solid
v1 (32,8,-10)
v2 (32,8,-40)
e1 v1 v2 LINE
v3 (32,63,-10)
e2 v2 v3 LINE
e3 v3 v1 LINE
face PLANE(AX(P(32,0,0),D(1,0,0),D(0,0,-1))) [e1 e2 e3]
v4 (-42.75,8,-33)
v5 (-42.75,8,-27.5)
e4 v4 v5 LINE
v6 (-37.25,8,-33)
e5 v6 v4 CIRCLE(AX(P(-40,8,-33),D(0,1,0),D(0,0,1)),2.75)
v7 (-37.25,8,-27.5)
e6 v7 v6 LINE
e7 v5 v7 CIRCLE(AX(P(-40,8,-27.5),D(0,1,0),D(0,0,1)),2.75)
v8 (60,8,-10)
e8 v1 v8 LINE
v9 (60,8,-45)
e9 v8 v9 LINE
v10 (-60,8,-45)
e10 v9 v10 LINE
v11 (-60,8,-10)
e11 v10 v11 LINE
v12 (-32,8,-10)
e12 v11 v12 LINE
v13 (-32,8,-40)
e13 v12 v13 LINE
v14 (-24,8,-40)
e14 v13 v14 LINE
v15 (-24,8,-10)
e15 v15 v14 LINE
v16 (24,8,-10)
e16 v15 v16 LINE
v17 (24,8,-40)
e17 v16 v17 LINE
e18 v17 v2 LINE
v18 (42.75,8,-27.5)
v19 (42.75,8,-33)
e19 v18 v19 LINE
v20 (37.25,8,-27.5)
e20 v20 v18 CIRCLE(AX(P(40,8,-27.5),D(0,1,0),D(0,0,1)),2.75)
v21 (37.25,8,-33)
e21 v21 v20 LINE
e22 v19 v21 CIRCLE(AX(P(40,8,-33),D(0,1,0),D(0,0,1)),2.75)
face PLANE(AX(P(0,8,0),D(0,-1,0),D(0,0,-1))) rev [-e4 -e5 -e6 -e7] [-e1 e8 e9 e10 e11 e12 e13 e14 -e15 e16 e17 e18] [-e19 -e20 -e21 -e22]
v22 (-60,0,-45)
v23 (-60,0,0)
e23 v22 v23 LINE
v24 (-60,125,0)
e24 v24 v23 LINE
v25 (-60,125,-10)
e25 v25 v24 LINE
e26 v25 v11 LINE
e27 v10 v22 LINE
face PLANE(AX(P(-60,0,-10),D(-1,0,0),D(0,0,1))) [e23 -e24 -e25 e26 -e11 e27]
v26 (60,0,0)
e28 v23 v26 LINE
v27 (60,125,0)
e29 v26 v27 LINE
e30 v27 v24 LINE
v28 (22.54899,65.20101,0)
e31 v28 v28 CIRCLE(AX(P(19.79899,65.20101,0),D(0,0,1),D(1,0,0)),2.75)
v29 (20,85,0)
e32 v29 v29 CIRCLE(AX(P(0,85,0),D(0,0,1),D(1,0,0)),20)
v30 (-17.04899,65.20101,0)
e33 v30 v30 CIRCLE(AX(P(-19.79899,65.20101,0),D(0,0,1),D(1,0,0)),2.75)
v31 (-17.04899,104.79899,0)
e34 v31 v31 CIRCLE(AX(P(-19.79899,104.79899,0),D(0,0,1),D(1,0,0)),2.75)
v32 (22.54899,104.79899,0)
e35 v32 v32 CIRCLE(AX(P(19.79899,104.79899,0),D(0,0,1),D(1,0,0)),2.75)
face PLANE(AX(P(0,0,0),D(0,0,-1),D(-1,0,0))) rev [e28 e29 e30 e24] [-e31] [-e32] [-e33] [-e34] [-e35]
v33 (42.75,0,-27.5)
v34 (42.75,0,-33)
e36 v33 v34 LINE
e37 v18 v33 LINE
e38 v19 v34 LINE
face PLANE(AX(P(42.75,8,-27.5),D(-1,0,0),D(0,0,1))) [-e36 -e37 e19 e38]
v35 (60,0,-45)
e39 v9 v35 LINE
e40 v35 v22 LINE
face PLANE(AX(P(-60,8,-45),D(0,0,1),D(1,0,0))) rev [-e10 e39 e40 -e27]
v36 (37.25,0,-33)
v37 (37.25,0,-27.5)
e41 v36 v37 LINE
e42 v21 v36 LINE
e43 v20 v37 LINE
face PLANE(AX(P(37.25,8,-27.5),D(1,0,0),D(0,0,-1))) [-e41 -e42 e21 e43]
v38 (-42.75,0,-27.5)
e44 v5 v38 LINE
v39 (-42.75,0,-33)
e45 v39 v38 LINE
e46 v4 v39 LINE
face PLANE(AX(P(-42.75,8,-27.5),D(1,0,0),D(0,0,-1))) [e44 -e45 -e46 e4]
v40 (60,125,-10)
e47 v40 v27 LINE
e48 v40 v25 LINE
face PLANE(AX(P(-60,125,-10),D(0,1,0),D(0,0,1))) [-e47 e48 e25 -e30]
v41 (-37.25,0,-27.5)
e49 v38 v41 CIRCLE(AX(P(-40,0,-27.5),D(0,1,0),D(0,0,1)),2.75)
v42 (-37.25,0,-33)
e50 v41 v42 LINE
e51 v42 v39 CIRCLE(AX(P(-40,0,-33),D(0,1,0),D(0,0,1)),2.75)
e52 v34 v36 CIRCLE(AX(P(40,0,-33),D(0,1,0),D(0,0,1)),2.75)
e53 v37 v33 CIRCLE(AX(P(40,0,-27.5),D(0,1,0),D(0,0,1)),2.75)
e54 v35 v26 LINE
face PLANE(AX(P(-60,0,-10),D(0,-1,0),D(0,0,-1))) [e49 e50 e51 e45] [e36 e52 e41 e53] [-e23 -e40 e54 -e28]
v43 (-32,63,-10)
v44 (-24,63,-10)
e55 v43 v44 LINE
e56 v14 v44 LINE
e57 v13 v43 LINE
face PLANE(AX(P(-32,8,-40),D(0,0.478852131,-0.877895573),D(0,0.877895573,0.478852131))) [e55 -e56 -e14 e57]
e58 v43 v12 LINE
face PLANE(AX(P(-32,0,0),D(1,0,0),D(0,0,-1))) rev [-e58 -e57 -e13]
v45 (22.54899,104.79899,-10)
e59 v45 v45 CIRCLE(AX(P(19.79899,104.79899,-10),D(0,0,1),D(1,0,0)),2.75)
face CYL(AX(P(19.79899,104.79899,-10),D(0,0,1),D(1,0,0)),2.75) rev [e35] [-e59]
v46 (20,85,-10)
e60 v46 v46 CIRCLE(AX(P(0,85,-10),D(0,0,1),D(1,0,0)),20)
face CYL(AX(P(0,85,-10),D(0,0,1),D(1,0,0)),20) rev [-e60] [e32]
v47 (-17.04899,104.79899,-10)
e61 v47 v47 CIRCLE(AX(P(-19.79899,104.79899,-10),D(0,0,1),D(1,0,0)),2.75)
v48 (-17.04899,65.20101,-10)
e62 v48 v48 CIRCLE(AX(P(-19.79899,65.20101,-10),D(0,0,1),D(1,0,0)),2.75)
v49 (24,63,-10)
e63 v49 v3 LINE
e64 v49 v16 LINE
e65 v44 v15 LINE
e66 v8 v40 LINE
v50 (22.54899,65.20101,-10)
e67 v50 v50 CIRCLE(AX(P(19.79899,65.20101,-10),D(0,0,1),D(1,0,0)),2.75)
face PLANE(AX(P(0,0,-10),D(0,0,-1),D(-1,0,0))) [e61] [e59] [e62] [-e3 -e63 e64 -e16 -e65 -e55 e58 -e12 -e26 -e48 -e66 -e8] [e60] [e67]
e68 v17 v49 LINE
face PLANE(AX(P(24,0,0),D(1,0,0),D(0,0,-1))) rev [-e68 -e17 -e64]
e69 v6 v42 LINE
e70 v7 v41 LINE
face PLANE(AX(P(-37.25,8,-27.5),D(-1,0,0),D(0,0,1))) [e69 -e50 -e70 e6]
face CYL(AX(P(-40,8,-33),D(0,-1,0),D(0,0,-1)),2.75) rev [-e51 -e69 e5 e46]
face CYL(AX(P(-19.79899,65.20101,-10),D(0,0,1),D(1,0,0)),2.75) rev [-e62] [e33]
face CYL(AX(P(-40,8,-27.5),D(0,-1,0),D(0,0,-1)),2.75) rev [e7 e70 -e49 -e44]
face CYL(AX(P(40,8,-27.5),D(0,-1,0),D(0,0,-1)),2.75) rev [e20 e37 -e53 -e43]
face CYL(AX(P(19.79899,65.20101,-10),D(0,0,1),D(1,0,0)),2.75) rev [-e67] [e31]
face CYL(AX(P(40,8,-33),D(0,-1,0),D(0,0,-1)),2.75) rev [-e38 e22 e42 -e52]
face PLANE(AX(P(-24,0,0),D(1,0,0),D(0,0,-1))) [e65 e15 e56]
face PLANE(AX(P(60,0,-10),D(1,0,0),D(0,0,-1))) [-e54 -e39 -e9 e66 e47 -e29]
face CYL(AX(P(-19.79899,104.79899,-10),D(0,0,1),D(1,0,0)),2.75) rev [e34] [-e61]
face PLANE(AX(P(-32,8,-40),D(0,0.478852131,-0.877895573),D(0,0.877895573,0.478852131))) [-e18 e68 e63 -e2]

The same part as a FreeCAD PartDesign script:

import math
import FreeCAD as App
import Part
import Sketcher

V = App.Vector
Q = App.Units.Quantity

doc = App.newDocument("Part")
params = doc.addObject("Spreadsheet::Sheet", "Params")
for row, (alias, value) in enumerate([
    ("sketch1_diameter", "40 mm"),
    ("sketch1_diameter2", "5.5 mm"),
    ("sketch1_width", "120 mm"),
    ("sketch1_height", "125 mm"),
    ("pad1_length", "10 mm"),
    ("sketch2_width", "120 mm"),
    ("sketch2_height", "35 mm"),
    ("sketch2_radius", "2.75 mm"),
    ("sketch2_height2", "5.5 mm"),
    ("pad2_length", "8 mm"),
    ("sketch3_width", "55 mm"),
    ("sketch3_height", "30 mm"),
    ("pad3_length", "64 mm"),
    ("sketch4_width", "55 mm"),
    ("sketch4_height", "30 mm"),
    ("pocket1_length", "48 mm"),
], start=1):
    params.set(f"A{row}", alias)
    params.set(f"B{row}", "=" + value)
    params.setAlias(f"B{row}", alias)

body = doc.addObject("PartDesign::Body", "Body")

sketch1 = body.newObject("Sketcher::SketchObject", "Sketch")
sketch1.AttachmentSupport = (doc.getObject("XY_Plane"), [""])
sketch1.MapMode = "FlatFace"
sketch1.addGeometry([
    Part.LineSegment(V(-60, 125, 0), V(-60, 0, 0)),
    Part.LineSegment(V(-60, 0, 0), V(60, 0, 0)),
    Part.LineSegment(V(60, 0, 0), V(60, 125, 0)),
    Part.LineSegment(V(60, 125, 0), V(-60, 125, 0)),
    Part.Circle(V(-19.8, 65.2, 0), V(0, 0, 1), 2.8),
    Part.Circle(V(19.8, 65.2, 0), V(0, 0, 1), 2.8),
    Part.Circle(V(-19.8, 104.8, 0), V(0, 0, 1), 2.8),
    Part.Circle(V(0, 85, 0), V(0, 0, 1), 20),
    Part.Circle(V(19.8, 104.8, 0), V(0, 0, 1), 2.8),
], False)
sketch1.addConstraint([
    Sketcher.Constraint("Coincident", 0, 2, 1, 1),
    Sketcher.Constraint("Coincident", 1, 2, 2, 1),
    Sketcher.Constraint("Coincident", 2, 2, 3, 1),
    Sketcher.Constraint("Coincident", 3, 2, 0, 1),
    Sketcher.Constraint("Vertical", 0),
    Sketcher.Constraint("Horizontal", 1),
    Sketcher.Constraint("Vertical", 2),
    Sketcher.Constraint("Horizontal", 3),
    Sketcher.Constraint("Equal", 4, 5),
    Sketcher.Constraint("Equal", 5, 6),
    Sketcher.Constraint("Equal", 6, 8),
    Sketcher.Constraint("Symmetric", 0, 2, 1, 2, -1, 1),
    Sketcher.Constraint("Symmetric", 4, 3, 5, 3, -2),
    Sketcher.Constraint("Symmetric", 6, 3, 8, 3, -2),
    Sketcher.Constraint("PointOnObject", 7, 3, -2),
    Sketcher.Constraint("Vertical", 4, 3, 6, 3),
    Sketcher.Constraint("Diameter", 7, Q("40 mm")),
    Sketcher.Constraint("Diameter", 4, Q("5.5 mm")),
    Sketcher.Constraint("DistanceX", 1, 1, 1, 2, Q("120 mm")),
    Sketcher.Constraint("DistanceY", 0, 2, 0, 1, Q("125 mm")),
    Sketcher.Constraint("DistanceY", -1, 1, 7, 3, Q("85 mm")),
    Sketcher.Constraint("DistanceX", 4, 3, -1, 1, Q("19.79899 mm")),
    Sketcher.Constraint("DistanceY", -1, 1, 4, 3, Q("65.20101 mm")),
    Sketcher.Constraint("DistanceY", -1, 1, 6, 3, Q("104.79899 mm")),
])
sketch1.setExpression("Constraints[16]", "Params.sketch1_diameter")
sketch1.setExpression("Constraints[17]", "Params.sketch1_diameter2")
sketch1.setExpression("Constraints[18]", "Params.sketch1_width")
sketch1.setExpression("Constraints[19]", "Params.sketch1_height")
pad1 = body.newObject("PartDesign::Pad", "Pad")
pad1.Profile = sketch1
pad1.setExpression("Length", "Params.pad1_length")
pad1.Reversed = True

sketch2 = body.newObject("Sketcher::SketchObject", "Sketch001")
sketch2.AttachmentSupport = (doc.getObject("XZ_Plane"), [""])
sketch2.MapMode = "FlatFace"
sketch2.addGeometry([
    Part.LineSegment(V(-60, -45, 0), V(-60, -10, 0)),
    Part.LineSegment(V(-60, -10, 0), V(60, -10, 0)),
    Part.LineSegment(V(60, -10, 0), V(60, -45, 0)),
    Part.LineSegment(V(60, -45, 0), V(-60, -45, 0)),
    Part.ArcOfCircle(Part.Circle(V(-40, -27.5, 0), V(0, 0, 1), 2.8), math.radians(0), math.radians(180)),
    Part.LineSegment(V(-42.8, -27.5, 0), V(-42.8, -33, 0)),
    Part.ArcOfCircle(Part.Circle(V(-40, -33, 0), V(0, 0, 1), 2.8), math.radians(180), math.radians(360)),
    Part.LineSegment(V(-37.2, -33, 0), V(-37.2, -27.5, 0)),
    Part.ArcOfCircle(Part.Circle(V(40, -27.5, 0), V(0, 0, 1), 2.8), math.radians(0), math.radians(180)),
    Part.LineSegment(V(37.2, -27.5, 0), V(37.2, -33, 0)),
    Part.ArcOfCircle(Part.Circle(V(40, -33, 0), V(0, 0, 1), 2.8), math.radians(180), math.radians(360)),
    Part.LineSegment(V(42.8, -33, 0), V(42.8, -27.5, 0)),
], False)
sketch2.addConstraint([
    Sketcher.Constraint("Coincident", 0, 2, 1, 1),
    Sketcher.Constraint("Coincident", 1, 2, 2, 1),
    Sketcher.Constraint("Coincident", 2, 2, 3, 1),
    Sketcher.Constraint("Coincident", 3, 2, 0, 1),
    Sketcher.Constraint("Tangent", 4, 2, 5, 1),
    Sketcher.Constraint("Tangent", 5, 2, 6, 1),
    Sketcher.Constraint("Tangent", 6, 2, 7, 1),
    Sketcher.Constraint("Tangent", 7, 2, 4, 1),
    Sketcher.Constraint("Tangent", 8, 2, 9, 1),
    Sketcher.Constraint("Tangent", 9, 2, 10, 1),
    Sketcher.Constraint("Tangent", 10, 2, 11, 1),
    Sketcher.Constraint("Tangent", 11, 2, 8, 1),
    Sketcher.Constraint("Vertical", 0),
    Sketcher.Constraint("Horizontal", 1),
    Sketcher.Constraint("Vertical", 2),
    Sketcher.Constraint("Horizontal", 3),
    Sketcher.Constraint("Vertical", 5),
    Sketcher.Constraint("Vertical", 7),
    Sketcher.Constraint("Vertical", 9),
    Sketcher.Constraint("Vertical", 11),
    Sketcher.Constraint("Equal", 6, 8),
    Sketcher.Constraint("Symmetric", 4, 3, 8, 3, -2),
    Sketcher.Constraint("Horizontal", 6, 3, 10, 3),
    Sketcher.Constraint("DistanceX", 1, 1, 1, 2, Q("120 mm")),
    Sketcher.Constraint("DistanceY", 0, 1, 0, 2, Q("35 mm")),
    Sketcher.Constraint("Radius", 4, Q("2.75 mm")),
    Sketcher.Constraint("DistanceY", 5, 2, 5, 1, Q("5.5 mm")),
    Sketcher.Constraint("DistanceX", 4, 3, -1, 1, Q("40 mm")),
    Sketcher.Constraint("DistanceY", 6, 3, -1, 1, Q("33 mm")),
    Sketcher.Constraint("DistanceX", 0, 2, -1, 1, Q("60 mm")),
    Sketcher.Constraint("DistanceY", 0, 2, -1, 1, Q("10 mm")),
])
sketch2.setExpression("Constraints[23]", "Params.sketch2_width")
sketch2.setExpression("Constraints[24]", "Params.sketch2_height")
sketch2.setExpression("Constraints[25]", "Params.sketch2_radius")
sketch2.setExpression("Constraints[26]", "Params.sketch2_height2")
pad2 = body.newObject("PartDesign::Pad", "Pad001")
pad2.Profile = sketch2
pad2.setExpression("Length", "Params.pad2_length")
pad2.Reversed = True

sketch3 = body.newObject("Sketcher::SketchObject", "Sketch002")
sketch3.AttachmentSupport = (doc.getObject("YZ_Plane"), [""])
sketch3.MapMode = "FlatFace"
sketch3.addGeometry([
    Part.LineSegment(V(8, -10, 0), V(8, -40, 0)),
    Part.LineSegment(V(8, -40, 0), V(63, -10, 0)),
    Part.LineSegment(V(63, -10, 0), V(8, -10, 0)),
], False)
sketch3.addConstraint([
    Sketcher.Constraint("Coincident", 0, 2, 1, 1),
    Sketcher.Constraint("Coincident", 1, 2, 2, 1),
    Sketcher.Constraint("Coincident", 2, 2, 0, 1),
    Sketcher.Constraint("Vertical", 0),
    Sketcher.Constraint("Horizontal", 2),
    Sketcher.Constraint("DistanceX", 2, 2, 2, 1, Q("55 mm")),
    Sketcher.Constraint("DistanceY", 0, 2, 0, 1, Q("30 mm")),
    Sketcher.Constraint("DistanceX", -1, 1, 0, 2, Q("8 mm")),
    Sketcher.Constraint("DistanceY", 0, 2, -1, 1, Q("40 mm")),
])
sketch3.setExpression("Constraints[5]", "Params.sketch3_width")
sketch3.setExpression("Constraints[6]", "Params.sketch3_height")
pad3 = body.newObject("PartDesign::Pad", "Pad002")
pad3.Profile = sketch3
pad3.setExpression("Length", "Params.pad3_length")
pad3.Midplane = True

sketch4 = body.newObject("Sketcher::SketchObject", "Sketch003")
sketch4.AttachmentSupport = (doc.getObject("YZ_Plane"), [""])
sketch4.MapMode = "FlatFace"
sketch4.addGeometry([
    Part.LineSegment(V(8, -10, 0), V(8, -40, 0)),
    Part.LineSegment(V(8, -40, 0), V(63, -10, 0)),
    Part.LineSegment(V(63, -10, 0), V(8, -10, 0)),
], False)
sketch4.addConstraint([
    Sketcher.Constraint("Coincident", 0, 2, 1, 1),
    Sketcher.Constraint("Coincident", 1, 2, 2, 1),
    Sketcher.Constraint("Coincident", 2, 2, 0, 1),
    Sketcher.Constraint("Vertical", 0),
    Sketcher.Constraint("Horizontal", 2),
    Sketcher.Constraint("DistanceX", 2, 2, 2, 1, Q("55 mm")),
    Sketcher.Constraint("DistanceY", 0, 2, 0, 1, Q("30 mm")),
    Sketcher.Constraint("DistanceX", -1, 1, 0, 2, Q("8 mm")),
    Sketcher.Constraint("DistanceY", 0, 2, -1, 1, Q("40 mm")),
])
sketch4.setExpression("Constraints[5]", "Params.sketch4_width")
sketch4.setExpression("Constraints[6]", "Params.sketch4_height")
pocket1 = body.newObject("PartDesign::Pocket", "Pocket")
pocket1.Profile = sketch4
pocket1.setExpression("Length", "Params.pocket1_length")
pocket1.Midplane = True

doc.recompute()
